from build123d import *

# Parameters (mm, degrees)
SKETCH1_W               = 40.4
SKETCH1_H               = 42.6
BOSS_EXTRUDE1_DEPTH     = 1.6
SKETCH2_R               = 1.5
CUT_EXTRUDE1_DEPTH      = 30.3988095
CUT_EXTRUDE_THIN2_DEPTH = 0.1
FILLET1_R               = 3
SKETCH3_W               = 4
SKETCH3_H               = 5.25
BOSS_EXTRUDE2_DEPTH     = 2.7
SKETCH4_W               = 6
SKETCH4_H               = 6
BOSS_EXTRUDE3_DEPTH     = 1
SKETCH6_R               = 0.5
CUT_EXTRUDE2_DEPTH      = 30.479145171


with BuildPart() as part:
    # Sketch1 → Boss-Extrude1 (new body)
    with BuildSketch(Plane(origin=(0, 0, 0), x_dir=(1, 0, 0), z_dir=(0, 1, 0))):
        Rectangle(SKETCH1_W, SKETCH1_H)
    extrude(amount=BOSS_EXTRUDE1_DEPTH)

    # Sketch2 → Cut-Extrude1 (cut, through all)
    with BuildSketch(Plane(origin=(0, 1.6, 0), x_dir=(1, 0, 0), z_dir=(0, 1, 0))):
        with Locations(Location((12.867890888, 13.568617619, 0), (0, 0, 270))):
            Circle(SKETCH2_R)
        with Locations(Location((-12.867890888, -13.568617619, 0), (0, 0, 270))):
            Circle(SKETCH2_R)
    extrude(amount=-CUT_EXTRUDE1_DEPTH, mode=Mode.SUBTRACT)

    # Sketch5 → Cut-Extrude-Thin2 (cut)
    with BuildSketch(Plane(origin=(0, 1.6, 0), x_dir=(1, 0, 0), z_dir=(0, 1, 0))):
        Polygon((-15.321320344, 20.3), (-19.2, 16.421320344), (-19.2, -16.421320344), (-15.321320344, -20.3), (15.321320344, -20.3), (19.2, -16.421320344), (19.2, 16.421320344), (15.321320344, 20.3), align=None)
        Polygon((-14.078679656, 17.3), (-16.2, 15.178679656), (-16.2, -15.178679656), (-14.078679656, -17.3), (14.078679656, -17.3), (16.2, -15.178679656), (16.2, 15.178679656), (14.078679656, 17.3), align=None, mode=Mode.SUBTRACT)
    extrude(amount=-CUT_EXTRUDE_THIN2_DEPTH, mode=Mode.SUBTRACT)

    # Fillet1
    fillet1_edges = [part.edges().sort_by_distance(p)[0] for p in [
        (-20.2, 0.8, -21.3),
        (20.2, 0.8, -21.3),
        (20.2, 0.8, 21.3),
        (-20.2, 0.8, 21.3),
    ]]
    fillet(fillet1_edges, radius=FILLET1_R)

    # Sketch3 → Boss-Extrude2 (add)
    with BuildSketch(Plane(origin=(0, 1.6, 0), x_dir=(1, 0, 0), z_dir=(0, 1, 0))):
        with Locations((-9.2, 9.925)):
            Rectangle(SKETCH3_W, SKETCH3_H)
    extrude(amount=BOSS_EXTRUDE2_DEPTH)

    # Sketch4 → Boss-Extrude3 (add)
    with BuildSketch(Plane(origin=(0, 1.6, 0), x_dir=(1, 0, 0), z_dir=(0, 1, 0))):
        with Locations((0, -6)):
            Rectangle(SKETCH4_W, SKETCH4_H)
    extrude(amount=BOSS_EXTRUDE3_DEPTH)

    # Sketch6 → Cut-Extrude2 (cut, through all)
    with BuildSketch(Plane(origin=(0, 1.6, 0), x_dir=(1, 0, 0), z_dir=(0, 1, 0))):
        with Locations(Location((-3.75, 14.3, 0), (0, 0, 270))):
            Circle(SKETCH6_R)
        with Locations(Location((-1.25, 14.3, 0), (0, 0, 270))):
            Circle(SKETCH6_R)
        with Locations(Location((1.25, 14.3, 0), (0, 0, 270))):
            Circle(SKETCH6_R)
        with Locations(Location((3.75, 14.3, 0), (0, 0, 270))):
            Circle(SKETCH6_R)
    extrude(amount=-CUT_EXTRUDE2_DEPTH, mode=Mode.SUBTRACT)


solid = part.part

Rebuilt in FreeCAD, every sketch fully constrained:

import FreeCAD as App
import Part
import Sketcher
from FreeCAD import Vector
Q = App.Units.Quantity


def edges_at(feature, points):
    """Names of the edges that pass closest to the given points."""
    edges = feature.Shape.Edges
    near = lambda p: min(range(len(edges)), key=lambda i: edges[i].distToShape(Part.Vertex(*p))[0])
    return sorted({f"Edge{near(p) + 1}" for p in points})

doc = App.newDocument("Part")
params = doc.addObject("Spreadsheet::Sheet", "Params")
for row, (alias, value) in enumerate([
    ("sketch1_width", "40.4 mm"),
    ("sketch1_height", "42.6 mm"),
    ("pad1_length", "1.6 mm"),
    ("sketch2_diameter", "3 mm"),
    ("sketch3_length", "3 mm"),
    ("pocket2_length", "0.1 mm"),
    ("fillet_radius", "3 mm"),
    ("sketch4_width", "4 mm"),
    ("sketch4_height", "5.25 mm"),
    ("pad2_length", "2.7 mm"),
    ("sketch5_width", "6 mm"),
    ("pad3_length", "1 mm"),
    ("sketch6_diameter", "1 mm"),
], start=1):
    params.set(f"A{row}", alias)
    params.set(f"B{row}", "=" + value)
    params.setAlias(f"B{row}", alias)

body = doc.addObject("PartDesign::Body", "Body")

sketch1 = body.newObject("Sketcher::SketchObject", "Sketch")
sketch1.AttachmentSupport = (doc.getObject("XZ_Plane"), [""])
sketch1.MapMode = "FlatFace"
sketch1.addGeometry([
    Part.LineSegment(Vector(-20, -21, 0), Vector(-20, 21, 0)),
    Part.LineSegment(Vector(-20, 21, 0), Vector(20, 21, 0)),
    Part.LineSegment(Vector(20, 21, 0), Vector(20, -21, 0)),
    Part.LineSegment(Vector(20, -21, 0), Vector(-20, -21, 0)),
], False)
sketch1.addConstraint([
    Sketcher.Constraint("Coincident", 0, 2, 1, 1),
    Sketcher.Constraint("Coincident", 1, 2, 2, 1),
    Sketcher.Constraint("Coincident", 2, 2, 3, 1),
    Sketcher.Constraint("Coincident", 3, 2, 0, 1),
    Sketcher.Constraint("Vertical", 0),
    Sketcher.Constraint("Horizontal", 1),
    Sketcher.Constraint("Vertical", 2),
    Sketcher.Constraint("Horizontal", 3),
    Sketcher.Constraint("Symmetric", 0, 2, 2, 2, -1, 1),
    Sketcher.Constraint("DistanceX", 1, 1, 1, 2, Q("40.4 mm")),
    Sketcher.Constraint("DistanceY", 0, 1, 0, 2, Q("42.6 mm")),
])
sketch1.setExpression("Constraints[9]", "Params.sketch1_width")
sketch1.setExpression("Constraints[10]", "Params.sketch1_height")
pad1 = body.newObject("PartDesign::Pad", "Pad")
pad1.Profile = sketch1
pad1.setExpression("Length", "Params.pad1_length")
pad1.Reversed = True

sketch2 = body.newObject("Sketcher::SketchObject", "Sketch001")
sketch2.AttachmentSupport = (doc.getObject("XZ_Plane"), [""])
sketch2.MapMode = "FlatFace"
sketch2.AttachmentOffset = App.Placement(Vector(0, 0, -1.6), App.Rotation())
sketch2.addGeometry([
    Part.Circle(Vector(12.9, -13.6, 0), Vector(0, 0, 1), 1.5),
    Part.Circle(Vector(-12.9, 13.6, 0), Vector(0, 0, 1), 1.5),
], False)
sketch2.addConstraint([
    Sketcher.Constraint("Equal", 0, 1),
    Sketcher.Constraint("Symmetric", 0, 3, 1, 3, -1, 1),
    Sketcher.Constraint("Diameter", 0, Q("3 mm")),
    Sketcher.Constraint("DistanceX", -1, 1, 0, 3, Q("12.867891 mm")),
    Sketcher.Constraint("DistanceY", 0, 3, -1, 1, Q("13.568618 mm")),
])
sketch2.setExpression("Constraints[2]", "Params.sketch2_diameter")
pocket1 = body.newObject("PartDesign::Pocket", "Pocket")
pocket1.Profile = sketch2
pocket1.Type = "ThroughAll"
pocket1.Reversed = True

sketch3 = body.newObject("Sketcher::SketchObject", "Sketch002")
sketch3.AttachmentSupport = (doc.getObject("XZ_Plane"), [""])
sketch3.MapMode = "FlatFace"
sketch3.AttachmentOffset = App.Placement(Vector(0, 0, -1.6), App.Rotation())
sketch3.addGeometry([
    Part.LineSegment(Vector(-15.3, -20.3, 0), Vector(-19.2, -16.4, 0)),
    Part.LineSegment(Vector(-19.2, -16.4, 0), Vector(-19.2, 16.4, 0)),
    Part.LineSegment(Vector(-19.2, 16.4, 0), Vector(-15.3, 20.3, 0)),
    Part.LineSegment(Vector(-15.3, 20.3, 0), Vector(15.3, 20.3, 0)),
    Part.LineSegment(Vector(15.3, 20.3, 0), Vector(19.2, 16.4, 0)),
    Part.LineSegment(Vector(19.2, 16.4, 0), Vector(19.2, -16.4, 0)),
    Part.LineSegment(Vector(19.2, -16.4, 0), Vector(15.3, -20.3, 0)),
    Part.LineSegment(Vector(15.3, -20.3, 0), Vector(-15.3, -20.3, 0)),
    Part.LineSegment(Vector(-16.2, -15.2, 0), Vector(-14.1, -17.3, 0)),
    Part.LineSegment(Vector(-14.1, -17.3, 0), Vector(14.1, -17.3, 0)),
    Part.LineSegment(Vector(14.1, -17.3, 0), Vector(16.2, -15.2, 0)),
    Part.LineSegment(Vector(16.2, -15.2, 0), Vector(16.2, 15.2, 0)),
    Part.LineSegment(Vector(16.2, 15.2, 0), Vector(14.1, 17.3, 0)),
    Part.LineSegment(Vector(14.1, 17.3, 0), Vector(-14.1, 17.3, 0)),
    Part.LineSegment(Vector(-14.1, 17.3, 0), Vector(-16.2, 15.2, 0)),
    Part.LineSegment(Vector(-16.2, 15.2, 0), Vector(-16.2, -15.2, 0)),
], False)
sketch3.addConstraint([
    Sketcher.Constraint("Coincident", 0, 2, 1, 1),
    Sketcher.Constraint("Coincident", 1, 2, 2, 1),
    Sketcher.Constraint("Coincident", 2, 2, 3, 1),
    Sketcher.Constraint("Coincident", 3, 2, 4, 1),
    Sketcher.Constraint("Coincident", 4, 2, 5, 1),
    Sketcher.Constraint("Coincident", 5, 2, 6, 1),
    Sketcher.Constraint("Coincident", 6, 2, 7, 1),
    Sketcher.Constraint("Coincident", 7, 2, 0, 1),
    Sketcher.Constraint("Coincident", 8, 2, 9, 1),
    Sketcher.Constraint("Coincident", 9, 2, 10, 1),
    Sketcher.Constraint("Coincident", 10, 2, 11, 1),
    Sketcher.Constraint("Coincident", 11, 2, 12, 1),
    Sketcher.Constraint("Coincident", 12, 2, 13, 1),
    Sketcher.Constraint("Coincident", 13, 2, 14, 1),
    Sketcher.Constraint("Coincident", 14, 2, 15, 1),
    Sketcher.Constraint("Coincident", 15, 2, 8, 1),
    Sketcher.Constraint("Vertical", 1),
    Sketcher.Constraint("Horizontal", 3),
    Sketcher.Constraint("Vertical", 5),
    Sketcher.Constraint("Horizontal", 7),
    Sketcher.Constraint("Horizontal", 9),
    Sketcher.Constraint("Vertical", 11),
    Sketcher.Constraint("Horizontal", 13),
    Sketcher.Constraint("Vertical", 15),
    Sketcher.Constraint("Symmetric", 0, 2, 4, 2, -1, 1),
    Sketcher.Constraint("Symmetric", 2, 2, 6, 2, -1, 1),
    Sketcher.Constraint("Symmetric", 8, 2, 12, 2, -1, 1),
    Sketcher.Constraint("Symmetric", 10, 2, 14, 2, -1, 1),
    Sketcher.Constraint("Perpendicular", 0, 2),
    Sketcher.Constraint("Perpendicular", 2, 4),
    Sketcher.Constraint("Perpendicular", 4, 6),
    Sketcher.Constraint("Perpendicular", 6, 8),
    Sketcher.Constraint("Perpendicular", 8, 10),
    Sketcher.Constraint("Perpendicular", 10, 12),
    Sketcher.Constraint("Perpendicular", 12, 14),
    Sketcher.Constraint("Horizontal", 1, 2, 4, 2),
    Sketcher.Constraint("Horizontal", 11, 2, 14, 2),
    Sketcher.Constraint("Vertical", 3, 2, 6, 2),
    Sketcher.Constraint("Distance", 8, Q("3 mm")),
    Sketcher.Constraint("DistanceY", 7, 2, 8, 2, Q("3 mm")),
    Sketcher.Constraint("DistanceX", 10, 2, 5, 2, Q("3 mm")),
    Sketcher.Constraint("DistanceX", 0, 2, -1, 1, Q("19.2 mm")),
    Sketcher.Constraint("DistanceY", -1, 1, 2, 2, Q("20.3 mm")),
    Sketcher.Constraint("DistanceX", 8, 2, 6, 2, Q("29.4 mm")),
])
sketch3.setExpression("Constraints[38]", "Params.sketch3_length")
pocket2 = body.newObject("PartDesign::Pocket", "Pocket001")
pocket2.Profile = sketch3
pocket2.setExpression("Length", "Params.pocket2_length")
pocket2.Reversed = True
doc.recompute()

fillet = body.newObject("PartDesign::Fillet", "Fillet")
fillet.Base = (pocket2, edges_at(pocket2, [
    (-20.2, 0.8, -21.3),
    (20.2, 0.8, -21.3),
    (20.2, 0.8, 21.3),
    (-20.2, 0.8, 21.3),
]))
fillet.setExpression("Radius", "Params.fillet_radius")

sketch4 = body.newObject("Sketcher::SketchObject", "Sketch003")
sketch4.AttachmentSupport = (doc.getObject("XZ_Plane"), [""])
sketch4.MapMode = "FlatFace"
sketch4.AttachmentOffset = App.Placement(Vector(0, 0, -1.6), App.Rotation())
sketch4.addGeometry([
    Part.LineSegment(Vector(-11.2, -12.6, 0), Vector(-11.2, -7.3, 0)),
    Part.LineSegment(Vector(-11.2, -7.3, 0), Vector(-7.2, -7.3, 0)),
    Part.LineSegment(Vector(-7.2, -7.3, 0), Vector(-7.2, -12.6, 0)),
    Part.LineSegment(Vector(-7.2, -12.6, 0), Vector(-11.2, -12.6, 0)),
], False)
sketch4.addConstraint([
    Sketcher.Constraint("Coincident", 0, 2, 1, 1),
    Sketcher.Constraint("Coincident", 1, 2, 2, 1),
    Sketcher.Constraint("Coincident", 2, 2, 3, 1),
    Sketcher.Constraint("Coincident", 3, 2, 0, 1),
    Sketcher.Constraint("Vertical", 0),
    Sketcher.Constraint("Horizontal", 1),
    Sketcher.Constraint("Vertical", 2),
    Sketcher.Constraint("Horizontal", 3),
    Sketcher.Constraint("DistanceX", 1, 1, 1, 2, Q("4 mm")),
    Sketcher.Constraint("DistanceY", 0, 1, 0, 2, Q("5.25 mm")),
    Sketcher.Constraint("DistanceX", 0, 2, -1, 1, Q("11.2 mm")),
    Sketcher.Constraint("DistanceY", 0, 2, -1, 1, Q("7.3 mm")),
])
sketch4.setExpression("Constraints[8]", "Params.sketch4_width")
sketch4.setExpression("Constraints[9]", "Params.sketch4_height")
pad2 = body.newObject("PartDesign::Pad", "Pad001")
pad2.Profile = sketch4
pad2.setExpression("Length", "Params.pad2_length")
pad2.Reversed = True

sketch5 = body.newObject("Sketcher::SketchObject", "Sketch004")
sketch5.AttachmentSupport = (doc.getObject("XZ_Plane"), [""])
sketch5.MapMode = "FlatFace"
sketch5.AttachmentOffset = App.Placement(Vector(0, 0, -1.6), App.Rotation())
sketch5.addGeometry([
    Part.LineSegment(Vector(-3, 3, 0), Vector(-3, 9, 0)),
    Part.LineSegment(Vector(-3, 9, 0), Vector(3, 9, 0)),
    Part.LineSegment(Vector(3, 9, 0), Vector(3, 3, 0)),
    Part.LineSegment(Vector(3, 3, 0), Vector(-3, 3, 0)),
], False)
sketch5.addConstraint([
    Sketcher.Constraint("Coincident", 0, 2, 1, 1),
    Sketcher.Constraint("Coincident", 1, 2, 2, 1),
    Sketcher.Constraint("Coincident", 2, 2, 3, 1),
    Sketcher.Constraint("Coincident", 3, 2, 0, 1),
    Sketcher.Constraint("Vertical", 0),
    Sketcher.Constraint("Horizontal", 1),
    Sketcher.Constraint("Vertical", 2),
    Sketcher.Constraint("Horizontal", 3),
    Sketcher.Constraint("Equal", 3, 0),
    Sketcher.Constraint("DistanceX", 1, 1, 1, 2, Q("6 mm")),
    Sketcher.Constraint("DistanceX", 0, 2, -1, 1, Q("3 mm")),
    Sketcher.Constraint("DistanceY", -1, 1, 0, 2, Q("9 mm")),
])
sketch5.setExpression("Constraints[9]", "Params.sketch5_width")
pad3 = body.newObject("PartDesign::Pad", "Pad002")
pad3.Profile = sketch5
pad3.setExpression("Length", "Params.pad3_length")
pad3.Reversed = True

sketch6 = body.newObject("Sketcher::SketchObject", "Sketch005")
sketch6.AttachmentSupport = (doc.getObject("XZ_Plane"), [""])
sketch6.MapMode = "FlatFace"
sketch6.AttachmentOffset = App.Placement(Vector(0, 0, -1.6), App.Rotation())
sketch6.addGeometry([
    Part.Circle(Vector(-3.8, -14.3, 0), Vector(0, 0, 1), 0.5),
    Part.Circle(Vector(-1.2, -14.3, 0), Vector(0, 0, 1), 0.5),
    Part.Circle(Vector(1.2, -14.3, 0), Vector(0, 0, 1), 0.5),
    Part.Circle(Vector(3.8, -14.3, 0), Vector(0, 0, 1), 0.5),
], False)
sketch6.addConstraint([
    Sketcher.Constraint("Equal", 0, 1),
    Sketcher.Constraint("Equal", 1, 2),
    Sketcher.Constraint("Equal", 2, 3),
    Sketcher.Constraint("Symmetric", 1, 3, 2, 3, -2),
    Sketcher.Constraint("Symmetric", 0, 3, 3, 3, -2),
    Sketcher.Constraint("Horizontal", 0, 3, 1, 3),
    Sketcher.Constraint("Diameter", 0, Q("1 mm")),
    Sketcher.Constraint("DistanceX", 0, 3, 2, 3, Q("5 mm")),
    Sketcher.Constraint("DistanceY", 0, 3, -1, 1, Q("14.3 mm")),
    Sketcher.Constraint("DistanceX", 0, 3, 1, 3, Q("2.5 mm")),
])
sketch6.setExpression("Constraints[6]", "Params.sketch6_diameter")
pocket3 = body.newObject("PartDesign::Pocket", "Pocket002")
pocket3.Profile = sketch6
pocket3.Type = "ThroughAll"
pocket3.Reversed = True

doc.recompute()
